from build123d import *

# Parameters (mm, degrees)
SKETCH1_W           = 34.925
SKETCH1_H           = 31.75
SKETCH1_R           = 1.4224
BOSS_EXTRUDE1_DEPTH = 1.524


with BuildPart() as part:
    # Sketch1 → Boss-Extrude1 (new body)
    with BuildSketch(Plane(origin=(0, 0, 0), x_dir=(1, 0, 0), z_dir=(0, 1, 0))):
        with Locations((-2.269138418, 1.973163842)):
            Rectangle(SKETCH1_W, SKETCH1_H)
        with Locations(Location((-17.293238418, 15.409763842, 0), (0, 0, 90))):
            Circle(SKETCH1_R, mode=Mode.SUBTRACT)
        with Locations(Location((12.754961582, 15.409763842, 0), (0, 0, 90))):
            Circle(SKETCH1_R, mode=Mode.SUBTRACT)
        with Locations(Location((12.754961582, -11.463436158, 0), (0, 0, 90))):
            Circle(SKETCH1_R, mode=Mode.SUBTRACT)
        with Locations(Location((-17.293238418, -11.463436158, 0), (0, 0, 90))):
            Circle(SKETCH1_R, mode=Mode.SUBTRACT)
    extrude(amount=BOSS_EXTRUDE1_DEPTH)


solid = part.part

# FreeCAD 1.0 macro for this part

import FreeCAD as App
import Part
import Sketcher
Q = App.Units.Quantity


def add_polygon(sketch, points):
    """Adds a closed chain of lines whose ends are joined by coincident constraints."""
    first, n = sketch.GeometryCount, len(points)
    for a, b in zip(points, points[1:] + points[:1]):
        sketch.addGeometry(Part.LineSegment(App.Vector(*a, 0), App.Vector(*b, 0)), False)
    for i in range(n):
        sketch.addConstraint(Sketcher.Constraint("Coincident", first + i, 2, first + (i + 1) % n, 1))

doc = App.newDocument("Part")
params = doc.addObject("Spreadsheet::Sheet", "Params")
for row, (alias, value) in enumerate([
    ("sketch1_diameter", "0.112 in"),
    ("sketch1_height", "1.25 in"),
    ("sketch1_width", "1.375 in"),
    ("pad1_length", "0.06 in"),
], start=1):
    params.set(f"A{row}", alias)
    params.set(f"B{row}", "=" + value)
    params.setAlias(f"B{row}", alias)

body = doc.addObject("PartDesign::Body", "Body")

sketch1 = body.newObject("Sketcher::SketchObject", "Sketch")
sketch1.AttachmentSupport = (doc.getObject("XZ_Plane"), [""])
sketch1.MapMode = "FlatFace"
add_polygon(sketch1, [(-19.7, -17.8), (-19.7, 13.9), (15.2, 13.9), (15.2, -17.8)])
sketch1.addGeometry(Part.Circle(App.Vector(-17.3, 11.5, 0), App.Vector(0, 0, 1), 1.4), False)
sketch1.addGeometry(Part.Circle(App.Vector(12.8, 11.5, 0), App.Vector(0, 0, 1), 1.4), False)
sketch1.addGeometry(Part.Circle(App.Vector(-17.3, -15.4, 0), App.Vector(0, 0, 1), 1.4), False)
sketch1.addGeometry(Part.Circle(App.Vector(12.8, -15.4, 0), App.Vector(0, 0, 1), 1.4), False)
sketch1.addConstraint([
    Sketcher.Constraint("Vertical", 0),
    Sketcher.Constraint("Horizontal", 1),
    Sketcher.Constraint("Vertical", 2),
    Sketcher.Constraint("Horizontal", 3),
    Sketcher.Constraint("Equal", 4, 5),
    Sketcher.Constraint("Equal", 5, 6),
    Sketcher.Constraint("Equal", 6, 7),
    Sketcher.Constraint("Horizontal", 4, 3, 5, 3),
    Sketcher.Constraint("Horizontal", 6, 3, 7, 3),
    Sketcher.Constraint("Vertical", 4, 3, 6, 3),
    Sketcher.Constraint("Vertical", 5, 3, 7, 3),
    Sketcher.Constraint("Diameter", 4, Q("0.112 in")),
    Sketcher.Constraint("DistanceY", 0, 1, 0, 2, Q("1.25 in")),
    Sketcher.Constraint("DistanceX", 1, 1, 1, 2, Q("1.375 in")),
    Sketcher.Constraint("DistanceX", 4, 3, 5, 3, Q("1.183 in")),
    Sketcher.Constraint("DistanceY", 6, 3, 4, 3, Q("1.058 in")),
    Sketcher.Constraint("DistanceX", 0, 2, 4, 3, Q("0.096 in")),
    Sketcher.Constraint("DistanceY", 4, 3, 0, 2, Q("0.096 in")),
    Sketcher.Constraint("DistanceX", 4, 3, -1, 1, 17.293238),
    Sketcher.Constraint("DistanceY", -1, 1, 4, 3, 11.463436),
])
sketch1.setExpression("Constraints[15]", "Params.sketch1_diameter")
sketch1.setExpression("Constraints[16]", "Params.sketch1_height")
sketch1.setExpression("Constraints[17]", "Params.sketch1_width")
pad1 = body.newObject("PartDesign::Pad", "Pad")
pad1.Profile = sketch1
pad1.setExpression("Length", "Params.pad1_length")
pad1.Reversed = True

doc.recompute()
